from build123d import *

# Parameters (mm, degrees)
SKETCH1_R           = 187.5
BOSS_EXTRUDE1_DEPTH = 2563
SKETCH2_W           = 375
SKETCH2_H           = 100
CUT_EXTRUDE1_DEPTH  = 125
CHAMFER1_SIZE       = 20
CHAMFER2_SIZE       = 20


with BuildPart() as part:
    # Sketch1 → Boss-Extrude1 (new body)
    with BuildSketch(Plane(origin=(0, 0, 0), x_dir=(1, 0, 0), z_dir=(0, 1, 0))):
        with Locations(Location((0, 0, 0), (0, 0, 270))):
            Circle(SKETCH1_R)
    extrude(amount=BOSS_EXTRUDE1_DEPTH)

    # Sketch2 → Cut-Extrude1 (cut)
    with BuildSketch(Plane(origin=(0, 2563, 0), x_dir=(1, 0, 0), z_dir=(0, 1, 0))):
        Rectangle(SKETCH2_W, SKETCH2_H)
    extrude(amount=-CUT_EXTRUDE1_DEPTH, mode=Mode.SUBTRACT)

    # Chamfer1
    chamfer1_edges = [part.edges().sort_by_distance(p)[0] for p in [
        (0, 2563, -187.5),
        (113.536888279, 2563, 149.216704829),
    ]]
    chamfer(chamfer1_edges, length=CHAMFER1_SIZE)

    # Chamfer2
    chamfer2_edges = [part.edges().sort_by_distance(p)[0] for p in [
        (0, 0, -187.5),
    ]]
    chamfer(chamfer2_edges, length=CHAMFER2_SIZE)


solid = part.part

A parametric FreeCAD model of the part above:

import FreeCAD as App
import Part
import Sketcher
from FreeCAD import Vector
Q = App.Units.Quantity


def edges_at(feature, points):
    """Names of the edges that pass closest to the given points."""
    edges = feature.Shape.Edges
    near = lambda p: min(range(len(edges)), key=lambda i: edges[i].distToShape(Part.Vertex(*p))[0])
    return sorted({f"Edge{near(p) + 1}" for p in points})

doc = App.newDocument("Part")
body = doc.addObject("PartDesign::Body", "Body")

# Sketch on XZ plane
sketch1 = body.newObject("Sketcher::SketchObject", "Sketch")
sketch1.AttachmentSupport = (doc.getObject("XZ_Plane"), [""])
sketch1.MapMode = "FlatFace"
sketch1.addGeometry(Part.Circle(Vector(0, 0, 0), Vector(0, 0, 1), 187.5), False)
sketch1.addConstraint([
    Sketcher.Constraint("Coincident", 0, 3, -1, 1),
    Sketcher.Constraint("Diameter", 0, Q("375 mm")),
])
pad1 = body.newObject("PartDesign::Pad", "Pad")
pad1.Profile = sketch1
pad1.Length = 2563
pad1.Reversed = True

# Sketch on XZ plane
sketch2 = body.newObject("Sketcher::SketchObject", "Sketch001")
sketch2.AttachmentSupport = (doc.getObject("XZ_Plane"), [""])
sketch2.MapMode = "FlatFace"
sketch2.AttachmentOffset = App.Placement(Vector(0, 0, -2563), App.Rotation())
sketch2.addGeometry([
    Part.LineSegment(Vector(-187.5, -50, 0), Vector(-187.5, 50, 0)),
    Part.LineSegment(Vector(-187.5, 50, 0), Vector(187.5, 50, 0)),
    Part.LineSegment(Vector(187.5, 50, 0), Vector(187.5, -50, 0)),
    Part.LineSegment(Vector(187.5, -50, 0), Vector(-187.5, -50, 0)),
], False)
sketch2.addConstraint([
    Sketcher.Constraint("Coincident", 0, 2, 1, 1),
    Sketcher.Constraint("Coincident", 1, 2, 2, 1),
    Sketcher.Constraint("Coincident", 2, 2, 3, 1),
    Sketcher.Constraint("Coincident", 3, 2, 0, 1),
    Sketcher.Constraint("Vertical", 0),
    Sketcher.Constraint("Horizontal", 1),
    Sketcher.Constraint("Vertical", 2),
    Sketcher.Constraint("Horizontal", 3),
    Sketcher.Constraint("Symmetric", 0, 2, 2, 2, -1, 1),
    Sketcher.Constraint("DistanceX", 1, 1, 1, 2, Q("375 mm")),
    Sketcher.Constraint("DistanceY", 0, 1, 0, 2, Q("100 mm")),
])
pocket1 = body.newObject("PartDesign::Pocket", "Pocket")
pocket1.Profile = sketch2
pocket1.Length = 125
pocket1.Reversed = True
doc.recompute()

chamfer = body.newObject("PartDesign::Chamfer", "Chamfer")
chamfer.Base = (pocket1, edges_at(pocket1, [(0, 2563, -187.5), (113.537, 2563, 149.217)]))
chamfer.Size = 20
doc.recompute()

chamfer2 = body.newObject("PartDesign::Chamfer", "Chamfer001")
chamfer2.Base = (chamfer, edges_at(chamfer, [(0, 0, -187.5)]))
chamfer2.Size = 20

doc.recompute()
